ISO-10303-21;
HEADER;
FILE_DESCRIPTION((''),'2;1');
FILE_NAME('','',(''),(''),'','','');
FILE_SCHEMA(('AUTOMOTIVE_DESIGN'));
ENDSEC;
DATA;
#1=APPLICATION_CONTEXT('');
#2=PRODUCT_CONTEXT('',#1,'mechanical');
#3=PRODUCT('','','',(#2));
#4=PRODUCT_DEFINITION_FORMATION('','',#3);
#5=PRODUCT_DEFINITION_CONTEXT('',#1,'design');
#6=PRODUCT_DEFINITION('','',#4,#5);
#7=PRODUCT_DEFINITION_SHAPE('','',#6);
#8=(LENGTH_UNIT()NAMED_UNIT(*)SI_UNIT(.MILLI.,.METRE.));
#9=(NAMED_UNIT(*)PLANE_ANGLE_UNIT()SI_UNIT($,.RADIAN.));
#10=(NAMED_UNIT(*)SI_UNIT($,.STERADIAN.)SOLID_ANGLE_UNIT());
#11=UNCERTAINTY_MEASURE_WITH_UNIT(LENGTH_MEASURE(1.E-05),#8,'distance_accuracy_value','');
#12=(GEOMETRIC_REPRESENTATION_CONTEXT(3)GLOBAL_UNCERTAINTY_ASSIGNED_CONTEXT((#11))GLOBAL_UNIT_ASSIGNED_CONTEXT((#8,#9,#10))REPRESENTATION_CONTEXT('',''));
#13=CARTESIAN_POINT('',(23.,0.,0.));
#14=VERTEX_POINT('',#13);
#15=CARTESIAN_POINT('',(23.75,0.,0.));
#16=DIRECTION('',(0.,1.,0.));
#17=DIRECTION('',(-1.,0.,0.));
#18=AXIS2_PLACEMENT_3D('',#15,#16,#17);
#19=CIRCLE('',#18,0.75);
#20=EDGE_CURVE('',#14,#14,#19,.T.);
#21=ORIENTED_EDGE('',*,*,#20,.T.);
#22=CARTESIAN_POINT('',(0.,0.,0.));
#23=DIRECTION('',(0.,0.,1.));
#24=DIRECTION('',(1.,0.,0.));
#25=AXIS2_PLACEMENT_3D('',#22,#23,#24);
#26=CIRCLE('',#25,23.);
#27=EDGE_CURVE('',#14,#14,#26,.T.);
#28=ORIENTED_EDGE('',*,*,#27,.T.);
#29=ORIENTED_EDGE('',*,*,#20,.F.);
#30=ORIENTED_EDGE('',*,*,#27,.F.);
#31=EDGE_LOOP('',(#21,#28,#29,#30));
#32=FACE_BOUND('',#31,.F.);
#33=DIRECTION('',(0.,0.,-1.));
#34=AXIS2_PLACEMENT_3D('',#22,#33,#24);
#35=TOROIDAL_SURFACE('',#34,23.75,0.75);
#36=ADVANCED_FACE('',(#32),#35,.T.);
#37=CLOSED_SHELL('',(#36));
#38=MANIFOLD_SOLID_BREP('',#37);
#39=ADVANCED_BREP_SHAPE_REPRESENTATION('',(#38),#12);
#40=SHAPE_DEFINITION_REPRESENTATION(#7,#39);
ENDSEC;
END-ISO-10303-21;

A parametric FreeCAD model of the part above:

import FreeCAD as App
import Part
import Sketcher
from FreeCAD import Vector

doc = App.newDocument("Part")
body = doc.addObject("PartDesign::Body", "Body")

# Sketch on XZ plane
sketch1 = body.newObject("Sketcher::SketchObject", "Sketch")
sketch1.AttachmentSupport = (doc.getObject("XZ_Plane"), [""])
sketch1.MapMode = "FlatFace"
sketch1.addGeometry(Part.Circle(Vector(23.75, 0, 0), Vector(0, 0, 1), 0.75), False)
sketch1.addConstraint([
    Sketcher.Constraint("PointOnObject", 0, 3, -1),
    Sketcher.Constraint("Diameter", 0, 1.5),
    Sketcher.Constraint("DistanceX", -1, 1, 0, 3, 23.75),
])
revolution = body.newObject("PartDesign::Revolution", "Revolution")
revolution.Profile = sketch1
revolution.ReferenceAxis = (sketch1, ["V_Axis"])
revolution.Angle = 360

doc.recompute()
